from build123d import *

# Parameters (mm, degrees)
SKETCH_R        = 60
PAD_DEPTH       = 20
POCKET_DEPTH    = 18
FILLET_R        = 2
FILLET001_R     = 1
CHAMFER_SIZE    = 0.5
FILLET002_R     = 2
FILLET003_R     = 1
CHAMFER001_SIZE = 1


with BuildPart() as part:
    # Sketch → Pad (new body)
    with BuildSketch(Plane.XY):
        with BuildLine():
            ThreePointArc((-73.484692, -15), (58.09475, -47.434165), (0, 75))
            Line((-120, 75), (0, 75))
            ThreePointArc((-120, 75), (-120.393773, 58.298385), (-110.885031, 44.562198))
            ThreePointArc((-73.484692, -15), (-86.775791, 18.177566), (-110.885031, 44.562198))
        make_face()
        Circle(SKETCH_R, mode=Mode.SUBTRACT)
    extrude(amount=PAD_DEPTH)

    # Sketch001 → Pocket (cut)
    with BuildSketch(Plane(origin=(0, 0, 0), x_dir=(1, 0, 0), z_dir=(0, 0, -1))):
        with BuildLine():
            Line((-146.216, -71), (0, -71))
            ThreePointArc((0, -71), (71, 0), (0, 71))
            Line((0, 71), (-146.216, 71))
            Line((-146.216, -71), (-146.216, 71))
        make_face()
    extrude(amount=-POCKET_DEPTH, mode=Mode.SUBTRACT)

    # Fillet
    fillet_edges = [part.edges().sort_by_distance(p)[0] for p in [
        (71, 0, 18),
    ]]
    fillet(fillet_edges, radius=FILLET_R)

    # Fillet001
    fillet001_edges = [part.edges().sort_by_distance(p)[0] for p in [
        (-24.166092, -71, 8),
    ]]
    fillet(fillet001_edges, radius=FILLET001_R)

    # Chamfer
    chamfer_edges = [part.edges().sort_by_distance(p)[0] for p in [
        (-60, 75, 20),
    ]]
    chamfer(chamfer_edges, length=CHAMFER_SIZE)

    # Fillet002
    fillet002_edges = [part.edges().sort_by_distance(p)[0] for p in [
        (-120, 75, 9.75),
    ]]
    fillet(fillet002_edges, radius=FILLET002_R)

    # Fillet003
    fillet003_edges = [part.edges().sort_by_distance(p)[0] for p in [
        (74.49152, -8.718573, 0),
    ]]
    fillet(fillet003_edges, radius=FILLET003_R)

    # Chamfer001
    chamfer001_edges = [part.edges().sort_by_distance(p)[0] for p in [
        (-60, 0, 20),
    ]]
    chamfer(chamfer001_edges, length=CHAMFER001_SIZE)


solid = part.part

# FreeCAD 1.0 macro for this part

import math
import FreeCAD as App
import Part
import Sketcher
from FreeCAD import Vector


def edges_at(feature, points):
    """Names of the edges that pass closest to the given points."""
    edges = feature.Shape.Edges
    near = lambda p: min(range(len(edges)), key=lambda i: edges[i].distToShape(Part.Vertex(*p))[0])
    return sorted({f"Edge{near(p) + 1}" for p in points})

doc = App.newDocument("Part")
body = doc.addObject("PartDesign::Body", "Body")

# Sketch on XY plane
sketch1 = body.newObject("Sketcher::SketchObject", "Sketch")
sketch1.AttachmentSupport = (doc.getObject("XY_Plane"), [""])
sketch1.MapMode = "FlatFace"
sketch1.addGeometry(Part.ArcOfCircle(Part.Circle(Vector(0, 0, 0), Vector(0, 0, 1), 75), math.radians(-168.463041), math.radians(90)), False)
sketch1.addGeometry(Part.LineSegment(Vector(0, 75, 0), Vector(-120, 75, 0)), False)
sketch1.addGeometry(Part.ArcOfCircle(Part.Circle(Vector(-94.528637, 66.044014, 0), Vector(0, 0, 1), 27.000001), math.radians(160.627815), math.radians(232.714119)), False)
sketch1.addGeometry(Part.ArcOfCircle(Part.Circle(Vector(-171.464273, -35.000087, 0), Vector(0, 0, 1), 100.000009), math.radians(11.537009), math.radians(52.714118)), False)
sketch1.addGeometry(Part.Circle(Vector(0, 0, 0), Vector(0, 0, 1), 60), False)
sketch1.addConstraint(Sketcher.Constraint("Coincident", 0, 2, 1, 1))
sketch1.addConstraint(Sketcher.Constraint("Coincident", 1, 2, 2, 1))
sketch1.addConstraint(Sketcher.Constraint("Coincident", 2, 2, 3, 2))
sketch1.addConstraint(Sketcher.Constraint("Coincident", 3, 1, 0, 1))
sketch1.addConstraint(Sketcher.Constraint("Horizontal", 1))
sketch1.addConstraint(Sketcher.Constraint("Coincident", 0, 3, -1, 1))
sketch1.addConstraint(Sketcher.Constraint("Coincident", 4, 3, -1, 1))
sketch1.addConstraint(Sketcher.Constraint("PointOnObject", 0, 2, -2))
sketch1.addConstraint(Sketcher.Constraint("Diameter", 4, 120.0))
sketch1.addConstraint(Sketcher.Constraint("Radius", 0, 75.0))
sketch1.addConstraint(Sketcher.Constraint("Radius", 2, 27.000001))
sketch1.addConstraint(Sketcher.Constraint("DistanceX", 1, 2, 1, 1, 120.0))
sketch1.addConstraint(Sketcher.Constraint("DistanceY", 3, 1, -1, 1, 15.0))
sketch1.addConstraint(Sketcher.Constraint("Radius", 3, 100.000009))
sketch1.addConstraint(Sketcher.Constraint("DistanceY", -1, 1, 2, 2, 44.562198))
sketch1.addConstraint(Sketcher.Constraint("DistanceY", 3, 3, 2, 3, 101.044101))
pad1 = body.newObject("PartDesign::Pad", "Pad")
pad1.Profile = sketch1
pad1.Length = 20

# Sketch on XY plane
sketch2 = body.newObject("Sketcher::SketchObject", "Sketch001")
sketch2.AttachmentSupport = (doc.getObject("XY_Plane"), [""])
sketch2.MapMode = "FlatFace"
sketch2.addGeometry(Part.LineSegment(Vector(-146.216, 71, 0), Vector(0, 71, 0)), False)
sketch2.addGeometry(Part.ArcOfCircle(Part.Circle(Vector(0, 0, 0), Vector(0, 0, 1), 71), math.radians(-90), math.radians(90)), False)
sketch2.addGeometry(Part.LineSegment(Vector(0, -71, 0), Vector(-146.216, -71, 0)), False)
sketch2.addGeometry(Part.LineSegment(Vector(-146.216, -71, 0), Vector(-146.216, 71, 0)), False)
sketch2.addConstraint(Sketcher.Constraint("Tangent", 0, 2, 1, 2))
sketch2.addConstraint(Sketcher.Constraint("Tangent", 1, 1, 2, 1))
sketch2.addConstraint(Sketcher.Constraint("Coincident", 2, 2, 3, 1))
sketch2.addConstraint(Sketcher.Constraint("Coincident", 3, 2, 0, 1))
sketch2.addConstraint(Sketcher.Constraint("Horizontal", 0))
sketch2.addConstraint(Sketcher.Constraint("Horizontal", 2))
sketch2.addConstraint(Sketcher.Constraint("Vertical", 3))
sketch2.addConstraint(Sketcher.Constraint("Coincident", 1, 3, -1, 1))
sketch2.addConstraint(Sketcher.Constraint("Radius", 1, 71.0))
sketch2.addConstraint(Sketcher.Constraint("DistanceX", 0, 1, 0, 2, 146.216))
pocket1 = body.newObject("PartDesign::Pocket", "Pocket")
pocket1.Profile = sketch2
pocket1.Length = 18
pocket1.Reversed = True
doc.recompute()

fillet = body.newObject("PartDesign::Fillet", "Fillet")
fillet.Base = (pocket1, edges_at(pocket1, [(71, 0, 18)]))
fillet.Radius = 2
doc.recompute()

fillet2 = body.newObject("PartDesign::Fillet", "Fillet001")
fillet2.Base = (fillet, edges_at(fillet, [(-24.166, -71, 8)]))
fillet2.Radius = 1
doc.recompute()

chamfer = body.newObject("PartDesign::Chamfer", "Chamfer")
chamfer.Base = (fillet2, edges_at(fillet2, [(-60, 75, 20)]))
chamfer.Size = 0.5
doc.recompute()

fillet3 = body.newObject("PartDesign::Fillet", "Fillet002")
fillet3.Base = (chamfer, edges_at(chamfer, [(-120, 75, 9.75)]))
fillet3.Radius = 2
doc.recompute()

fillet4 = body.newObject("PartDesign::Fillet", "Fillet003")
fillet4.Base = (fillet3, edges_at(fillet3, [(74.492, -8.719, 0)]))
fillet4.Radius = 1
doc.recompute()

chamfer2 = body.newObject("PartDesign::Chamfer", "Chamfer001")
chamfer2.Base = (fillet4, edges_at(fillet4, [(-60, 0, 20)]))
chamfer2.Size = 1

doc.recompute()
